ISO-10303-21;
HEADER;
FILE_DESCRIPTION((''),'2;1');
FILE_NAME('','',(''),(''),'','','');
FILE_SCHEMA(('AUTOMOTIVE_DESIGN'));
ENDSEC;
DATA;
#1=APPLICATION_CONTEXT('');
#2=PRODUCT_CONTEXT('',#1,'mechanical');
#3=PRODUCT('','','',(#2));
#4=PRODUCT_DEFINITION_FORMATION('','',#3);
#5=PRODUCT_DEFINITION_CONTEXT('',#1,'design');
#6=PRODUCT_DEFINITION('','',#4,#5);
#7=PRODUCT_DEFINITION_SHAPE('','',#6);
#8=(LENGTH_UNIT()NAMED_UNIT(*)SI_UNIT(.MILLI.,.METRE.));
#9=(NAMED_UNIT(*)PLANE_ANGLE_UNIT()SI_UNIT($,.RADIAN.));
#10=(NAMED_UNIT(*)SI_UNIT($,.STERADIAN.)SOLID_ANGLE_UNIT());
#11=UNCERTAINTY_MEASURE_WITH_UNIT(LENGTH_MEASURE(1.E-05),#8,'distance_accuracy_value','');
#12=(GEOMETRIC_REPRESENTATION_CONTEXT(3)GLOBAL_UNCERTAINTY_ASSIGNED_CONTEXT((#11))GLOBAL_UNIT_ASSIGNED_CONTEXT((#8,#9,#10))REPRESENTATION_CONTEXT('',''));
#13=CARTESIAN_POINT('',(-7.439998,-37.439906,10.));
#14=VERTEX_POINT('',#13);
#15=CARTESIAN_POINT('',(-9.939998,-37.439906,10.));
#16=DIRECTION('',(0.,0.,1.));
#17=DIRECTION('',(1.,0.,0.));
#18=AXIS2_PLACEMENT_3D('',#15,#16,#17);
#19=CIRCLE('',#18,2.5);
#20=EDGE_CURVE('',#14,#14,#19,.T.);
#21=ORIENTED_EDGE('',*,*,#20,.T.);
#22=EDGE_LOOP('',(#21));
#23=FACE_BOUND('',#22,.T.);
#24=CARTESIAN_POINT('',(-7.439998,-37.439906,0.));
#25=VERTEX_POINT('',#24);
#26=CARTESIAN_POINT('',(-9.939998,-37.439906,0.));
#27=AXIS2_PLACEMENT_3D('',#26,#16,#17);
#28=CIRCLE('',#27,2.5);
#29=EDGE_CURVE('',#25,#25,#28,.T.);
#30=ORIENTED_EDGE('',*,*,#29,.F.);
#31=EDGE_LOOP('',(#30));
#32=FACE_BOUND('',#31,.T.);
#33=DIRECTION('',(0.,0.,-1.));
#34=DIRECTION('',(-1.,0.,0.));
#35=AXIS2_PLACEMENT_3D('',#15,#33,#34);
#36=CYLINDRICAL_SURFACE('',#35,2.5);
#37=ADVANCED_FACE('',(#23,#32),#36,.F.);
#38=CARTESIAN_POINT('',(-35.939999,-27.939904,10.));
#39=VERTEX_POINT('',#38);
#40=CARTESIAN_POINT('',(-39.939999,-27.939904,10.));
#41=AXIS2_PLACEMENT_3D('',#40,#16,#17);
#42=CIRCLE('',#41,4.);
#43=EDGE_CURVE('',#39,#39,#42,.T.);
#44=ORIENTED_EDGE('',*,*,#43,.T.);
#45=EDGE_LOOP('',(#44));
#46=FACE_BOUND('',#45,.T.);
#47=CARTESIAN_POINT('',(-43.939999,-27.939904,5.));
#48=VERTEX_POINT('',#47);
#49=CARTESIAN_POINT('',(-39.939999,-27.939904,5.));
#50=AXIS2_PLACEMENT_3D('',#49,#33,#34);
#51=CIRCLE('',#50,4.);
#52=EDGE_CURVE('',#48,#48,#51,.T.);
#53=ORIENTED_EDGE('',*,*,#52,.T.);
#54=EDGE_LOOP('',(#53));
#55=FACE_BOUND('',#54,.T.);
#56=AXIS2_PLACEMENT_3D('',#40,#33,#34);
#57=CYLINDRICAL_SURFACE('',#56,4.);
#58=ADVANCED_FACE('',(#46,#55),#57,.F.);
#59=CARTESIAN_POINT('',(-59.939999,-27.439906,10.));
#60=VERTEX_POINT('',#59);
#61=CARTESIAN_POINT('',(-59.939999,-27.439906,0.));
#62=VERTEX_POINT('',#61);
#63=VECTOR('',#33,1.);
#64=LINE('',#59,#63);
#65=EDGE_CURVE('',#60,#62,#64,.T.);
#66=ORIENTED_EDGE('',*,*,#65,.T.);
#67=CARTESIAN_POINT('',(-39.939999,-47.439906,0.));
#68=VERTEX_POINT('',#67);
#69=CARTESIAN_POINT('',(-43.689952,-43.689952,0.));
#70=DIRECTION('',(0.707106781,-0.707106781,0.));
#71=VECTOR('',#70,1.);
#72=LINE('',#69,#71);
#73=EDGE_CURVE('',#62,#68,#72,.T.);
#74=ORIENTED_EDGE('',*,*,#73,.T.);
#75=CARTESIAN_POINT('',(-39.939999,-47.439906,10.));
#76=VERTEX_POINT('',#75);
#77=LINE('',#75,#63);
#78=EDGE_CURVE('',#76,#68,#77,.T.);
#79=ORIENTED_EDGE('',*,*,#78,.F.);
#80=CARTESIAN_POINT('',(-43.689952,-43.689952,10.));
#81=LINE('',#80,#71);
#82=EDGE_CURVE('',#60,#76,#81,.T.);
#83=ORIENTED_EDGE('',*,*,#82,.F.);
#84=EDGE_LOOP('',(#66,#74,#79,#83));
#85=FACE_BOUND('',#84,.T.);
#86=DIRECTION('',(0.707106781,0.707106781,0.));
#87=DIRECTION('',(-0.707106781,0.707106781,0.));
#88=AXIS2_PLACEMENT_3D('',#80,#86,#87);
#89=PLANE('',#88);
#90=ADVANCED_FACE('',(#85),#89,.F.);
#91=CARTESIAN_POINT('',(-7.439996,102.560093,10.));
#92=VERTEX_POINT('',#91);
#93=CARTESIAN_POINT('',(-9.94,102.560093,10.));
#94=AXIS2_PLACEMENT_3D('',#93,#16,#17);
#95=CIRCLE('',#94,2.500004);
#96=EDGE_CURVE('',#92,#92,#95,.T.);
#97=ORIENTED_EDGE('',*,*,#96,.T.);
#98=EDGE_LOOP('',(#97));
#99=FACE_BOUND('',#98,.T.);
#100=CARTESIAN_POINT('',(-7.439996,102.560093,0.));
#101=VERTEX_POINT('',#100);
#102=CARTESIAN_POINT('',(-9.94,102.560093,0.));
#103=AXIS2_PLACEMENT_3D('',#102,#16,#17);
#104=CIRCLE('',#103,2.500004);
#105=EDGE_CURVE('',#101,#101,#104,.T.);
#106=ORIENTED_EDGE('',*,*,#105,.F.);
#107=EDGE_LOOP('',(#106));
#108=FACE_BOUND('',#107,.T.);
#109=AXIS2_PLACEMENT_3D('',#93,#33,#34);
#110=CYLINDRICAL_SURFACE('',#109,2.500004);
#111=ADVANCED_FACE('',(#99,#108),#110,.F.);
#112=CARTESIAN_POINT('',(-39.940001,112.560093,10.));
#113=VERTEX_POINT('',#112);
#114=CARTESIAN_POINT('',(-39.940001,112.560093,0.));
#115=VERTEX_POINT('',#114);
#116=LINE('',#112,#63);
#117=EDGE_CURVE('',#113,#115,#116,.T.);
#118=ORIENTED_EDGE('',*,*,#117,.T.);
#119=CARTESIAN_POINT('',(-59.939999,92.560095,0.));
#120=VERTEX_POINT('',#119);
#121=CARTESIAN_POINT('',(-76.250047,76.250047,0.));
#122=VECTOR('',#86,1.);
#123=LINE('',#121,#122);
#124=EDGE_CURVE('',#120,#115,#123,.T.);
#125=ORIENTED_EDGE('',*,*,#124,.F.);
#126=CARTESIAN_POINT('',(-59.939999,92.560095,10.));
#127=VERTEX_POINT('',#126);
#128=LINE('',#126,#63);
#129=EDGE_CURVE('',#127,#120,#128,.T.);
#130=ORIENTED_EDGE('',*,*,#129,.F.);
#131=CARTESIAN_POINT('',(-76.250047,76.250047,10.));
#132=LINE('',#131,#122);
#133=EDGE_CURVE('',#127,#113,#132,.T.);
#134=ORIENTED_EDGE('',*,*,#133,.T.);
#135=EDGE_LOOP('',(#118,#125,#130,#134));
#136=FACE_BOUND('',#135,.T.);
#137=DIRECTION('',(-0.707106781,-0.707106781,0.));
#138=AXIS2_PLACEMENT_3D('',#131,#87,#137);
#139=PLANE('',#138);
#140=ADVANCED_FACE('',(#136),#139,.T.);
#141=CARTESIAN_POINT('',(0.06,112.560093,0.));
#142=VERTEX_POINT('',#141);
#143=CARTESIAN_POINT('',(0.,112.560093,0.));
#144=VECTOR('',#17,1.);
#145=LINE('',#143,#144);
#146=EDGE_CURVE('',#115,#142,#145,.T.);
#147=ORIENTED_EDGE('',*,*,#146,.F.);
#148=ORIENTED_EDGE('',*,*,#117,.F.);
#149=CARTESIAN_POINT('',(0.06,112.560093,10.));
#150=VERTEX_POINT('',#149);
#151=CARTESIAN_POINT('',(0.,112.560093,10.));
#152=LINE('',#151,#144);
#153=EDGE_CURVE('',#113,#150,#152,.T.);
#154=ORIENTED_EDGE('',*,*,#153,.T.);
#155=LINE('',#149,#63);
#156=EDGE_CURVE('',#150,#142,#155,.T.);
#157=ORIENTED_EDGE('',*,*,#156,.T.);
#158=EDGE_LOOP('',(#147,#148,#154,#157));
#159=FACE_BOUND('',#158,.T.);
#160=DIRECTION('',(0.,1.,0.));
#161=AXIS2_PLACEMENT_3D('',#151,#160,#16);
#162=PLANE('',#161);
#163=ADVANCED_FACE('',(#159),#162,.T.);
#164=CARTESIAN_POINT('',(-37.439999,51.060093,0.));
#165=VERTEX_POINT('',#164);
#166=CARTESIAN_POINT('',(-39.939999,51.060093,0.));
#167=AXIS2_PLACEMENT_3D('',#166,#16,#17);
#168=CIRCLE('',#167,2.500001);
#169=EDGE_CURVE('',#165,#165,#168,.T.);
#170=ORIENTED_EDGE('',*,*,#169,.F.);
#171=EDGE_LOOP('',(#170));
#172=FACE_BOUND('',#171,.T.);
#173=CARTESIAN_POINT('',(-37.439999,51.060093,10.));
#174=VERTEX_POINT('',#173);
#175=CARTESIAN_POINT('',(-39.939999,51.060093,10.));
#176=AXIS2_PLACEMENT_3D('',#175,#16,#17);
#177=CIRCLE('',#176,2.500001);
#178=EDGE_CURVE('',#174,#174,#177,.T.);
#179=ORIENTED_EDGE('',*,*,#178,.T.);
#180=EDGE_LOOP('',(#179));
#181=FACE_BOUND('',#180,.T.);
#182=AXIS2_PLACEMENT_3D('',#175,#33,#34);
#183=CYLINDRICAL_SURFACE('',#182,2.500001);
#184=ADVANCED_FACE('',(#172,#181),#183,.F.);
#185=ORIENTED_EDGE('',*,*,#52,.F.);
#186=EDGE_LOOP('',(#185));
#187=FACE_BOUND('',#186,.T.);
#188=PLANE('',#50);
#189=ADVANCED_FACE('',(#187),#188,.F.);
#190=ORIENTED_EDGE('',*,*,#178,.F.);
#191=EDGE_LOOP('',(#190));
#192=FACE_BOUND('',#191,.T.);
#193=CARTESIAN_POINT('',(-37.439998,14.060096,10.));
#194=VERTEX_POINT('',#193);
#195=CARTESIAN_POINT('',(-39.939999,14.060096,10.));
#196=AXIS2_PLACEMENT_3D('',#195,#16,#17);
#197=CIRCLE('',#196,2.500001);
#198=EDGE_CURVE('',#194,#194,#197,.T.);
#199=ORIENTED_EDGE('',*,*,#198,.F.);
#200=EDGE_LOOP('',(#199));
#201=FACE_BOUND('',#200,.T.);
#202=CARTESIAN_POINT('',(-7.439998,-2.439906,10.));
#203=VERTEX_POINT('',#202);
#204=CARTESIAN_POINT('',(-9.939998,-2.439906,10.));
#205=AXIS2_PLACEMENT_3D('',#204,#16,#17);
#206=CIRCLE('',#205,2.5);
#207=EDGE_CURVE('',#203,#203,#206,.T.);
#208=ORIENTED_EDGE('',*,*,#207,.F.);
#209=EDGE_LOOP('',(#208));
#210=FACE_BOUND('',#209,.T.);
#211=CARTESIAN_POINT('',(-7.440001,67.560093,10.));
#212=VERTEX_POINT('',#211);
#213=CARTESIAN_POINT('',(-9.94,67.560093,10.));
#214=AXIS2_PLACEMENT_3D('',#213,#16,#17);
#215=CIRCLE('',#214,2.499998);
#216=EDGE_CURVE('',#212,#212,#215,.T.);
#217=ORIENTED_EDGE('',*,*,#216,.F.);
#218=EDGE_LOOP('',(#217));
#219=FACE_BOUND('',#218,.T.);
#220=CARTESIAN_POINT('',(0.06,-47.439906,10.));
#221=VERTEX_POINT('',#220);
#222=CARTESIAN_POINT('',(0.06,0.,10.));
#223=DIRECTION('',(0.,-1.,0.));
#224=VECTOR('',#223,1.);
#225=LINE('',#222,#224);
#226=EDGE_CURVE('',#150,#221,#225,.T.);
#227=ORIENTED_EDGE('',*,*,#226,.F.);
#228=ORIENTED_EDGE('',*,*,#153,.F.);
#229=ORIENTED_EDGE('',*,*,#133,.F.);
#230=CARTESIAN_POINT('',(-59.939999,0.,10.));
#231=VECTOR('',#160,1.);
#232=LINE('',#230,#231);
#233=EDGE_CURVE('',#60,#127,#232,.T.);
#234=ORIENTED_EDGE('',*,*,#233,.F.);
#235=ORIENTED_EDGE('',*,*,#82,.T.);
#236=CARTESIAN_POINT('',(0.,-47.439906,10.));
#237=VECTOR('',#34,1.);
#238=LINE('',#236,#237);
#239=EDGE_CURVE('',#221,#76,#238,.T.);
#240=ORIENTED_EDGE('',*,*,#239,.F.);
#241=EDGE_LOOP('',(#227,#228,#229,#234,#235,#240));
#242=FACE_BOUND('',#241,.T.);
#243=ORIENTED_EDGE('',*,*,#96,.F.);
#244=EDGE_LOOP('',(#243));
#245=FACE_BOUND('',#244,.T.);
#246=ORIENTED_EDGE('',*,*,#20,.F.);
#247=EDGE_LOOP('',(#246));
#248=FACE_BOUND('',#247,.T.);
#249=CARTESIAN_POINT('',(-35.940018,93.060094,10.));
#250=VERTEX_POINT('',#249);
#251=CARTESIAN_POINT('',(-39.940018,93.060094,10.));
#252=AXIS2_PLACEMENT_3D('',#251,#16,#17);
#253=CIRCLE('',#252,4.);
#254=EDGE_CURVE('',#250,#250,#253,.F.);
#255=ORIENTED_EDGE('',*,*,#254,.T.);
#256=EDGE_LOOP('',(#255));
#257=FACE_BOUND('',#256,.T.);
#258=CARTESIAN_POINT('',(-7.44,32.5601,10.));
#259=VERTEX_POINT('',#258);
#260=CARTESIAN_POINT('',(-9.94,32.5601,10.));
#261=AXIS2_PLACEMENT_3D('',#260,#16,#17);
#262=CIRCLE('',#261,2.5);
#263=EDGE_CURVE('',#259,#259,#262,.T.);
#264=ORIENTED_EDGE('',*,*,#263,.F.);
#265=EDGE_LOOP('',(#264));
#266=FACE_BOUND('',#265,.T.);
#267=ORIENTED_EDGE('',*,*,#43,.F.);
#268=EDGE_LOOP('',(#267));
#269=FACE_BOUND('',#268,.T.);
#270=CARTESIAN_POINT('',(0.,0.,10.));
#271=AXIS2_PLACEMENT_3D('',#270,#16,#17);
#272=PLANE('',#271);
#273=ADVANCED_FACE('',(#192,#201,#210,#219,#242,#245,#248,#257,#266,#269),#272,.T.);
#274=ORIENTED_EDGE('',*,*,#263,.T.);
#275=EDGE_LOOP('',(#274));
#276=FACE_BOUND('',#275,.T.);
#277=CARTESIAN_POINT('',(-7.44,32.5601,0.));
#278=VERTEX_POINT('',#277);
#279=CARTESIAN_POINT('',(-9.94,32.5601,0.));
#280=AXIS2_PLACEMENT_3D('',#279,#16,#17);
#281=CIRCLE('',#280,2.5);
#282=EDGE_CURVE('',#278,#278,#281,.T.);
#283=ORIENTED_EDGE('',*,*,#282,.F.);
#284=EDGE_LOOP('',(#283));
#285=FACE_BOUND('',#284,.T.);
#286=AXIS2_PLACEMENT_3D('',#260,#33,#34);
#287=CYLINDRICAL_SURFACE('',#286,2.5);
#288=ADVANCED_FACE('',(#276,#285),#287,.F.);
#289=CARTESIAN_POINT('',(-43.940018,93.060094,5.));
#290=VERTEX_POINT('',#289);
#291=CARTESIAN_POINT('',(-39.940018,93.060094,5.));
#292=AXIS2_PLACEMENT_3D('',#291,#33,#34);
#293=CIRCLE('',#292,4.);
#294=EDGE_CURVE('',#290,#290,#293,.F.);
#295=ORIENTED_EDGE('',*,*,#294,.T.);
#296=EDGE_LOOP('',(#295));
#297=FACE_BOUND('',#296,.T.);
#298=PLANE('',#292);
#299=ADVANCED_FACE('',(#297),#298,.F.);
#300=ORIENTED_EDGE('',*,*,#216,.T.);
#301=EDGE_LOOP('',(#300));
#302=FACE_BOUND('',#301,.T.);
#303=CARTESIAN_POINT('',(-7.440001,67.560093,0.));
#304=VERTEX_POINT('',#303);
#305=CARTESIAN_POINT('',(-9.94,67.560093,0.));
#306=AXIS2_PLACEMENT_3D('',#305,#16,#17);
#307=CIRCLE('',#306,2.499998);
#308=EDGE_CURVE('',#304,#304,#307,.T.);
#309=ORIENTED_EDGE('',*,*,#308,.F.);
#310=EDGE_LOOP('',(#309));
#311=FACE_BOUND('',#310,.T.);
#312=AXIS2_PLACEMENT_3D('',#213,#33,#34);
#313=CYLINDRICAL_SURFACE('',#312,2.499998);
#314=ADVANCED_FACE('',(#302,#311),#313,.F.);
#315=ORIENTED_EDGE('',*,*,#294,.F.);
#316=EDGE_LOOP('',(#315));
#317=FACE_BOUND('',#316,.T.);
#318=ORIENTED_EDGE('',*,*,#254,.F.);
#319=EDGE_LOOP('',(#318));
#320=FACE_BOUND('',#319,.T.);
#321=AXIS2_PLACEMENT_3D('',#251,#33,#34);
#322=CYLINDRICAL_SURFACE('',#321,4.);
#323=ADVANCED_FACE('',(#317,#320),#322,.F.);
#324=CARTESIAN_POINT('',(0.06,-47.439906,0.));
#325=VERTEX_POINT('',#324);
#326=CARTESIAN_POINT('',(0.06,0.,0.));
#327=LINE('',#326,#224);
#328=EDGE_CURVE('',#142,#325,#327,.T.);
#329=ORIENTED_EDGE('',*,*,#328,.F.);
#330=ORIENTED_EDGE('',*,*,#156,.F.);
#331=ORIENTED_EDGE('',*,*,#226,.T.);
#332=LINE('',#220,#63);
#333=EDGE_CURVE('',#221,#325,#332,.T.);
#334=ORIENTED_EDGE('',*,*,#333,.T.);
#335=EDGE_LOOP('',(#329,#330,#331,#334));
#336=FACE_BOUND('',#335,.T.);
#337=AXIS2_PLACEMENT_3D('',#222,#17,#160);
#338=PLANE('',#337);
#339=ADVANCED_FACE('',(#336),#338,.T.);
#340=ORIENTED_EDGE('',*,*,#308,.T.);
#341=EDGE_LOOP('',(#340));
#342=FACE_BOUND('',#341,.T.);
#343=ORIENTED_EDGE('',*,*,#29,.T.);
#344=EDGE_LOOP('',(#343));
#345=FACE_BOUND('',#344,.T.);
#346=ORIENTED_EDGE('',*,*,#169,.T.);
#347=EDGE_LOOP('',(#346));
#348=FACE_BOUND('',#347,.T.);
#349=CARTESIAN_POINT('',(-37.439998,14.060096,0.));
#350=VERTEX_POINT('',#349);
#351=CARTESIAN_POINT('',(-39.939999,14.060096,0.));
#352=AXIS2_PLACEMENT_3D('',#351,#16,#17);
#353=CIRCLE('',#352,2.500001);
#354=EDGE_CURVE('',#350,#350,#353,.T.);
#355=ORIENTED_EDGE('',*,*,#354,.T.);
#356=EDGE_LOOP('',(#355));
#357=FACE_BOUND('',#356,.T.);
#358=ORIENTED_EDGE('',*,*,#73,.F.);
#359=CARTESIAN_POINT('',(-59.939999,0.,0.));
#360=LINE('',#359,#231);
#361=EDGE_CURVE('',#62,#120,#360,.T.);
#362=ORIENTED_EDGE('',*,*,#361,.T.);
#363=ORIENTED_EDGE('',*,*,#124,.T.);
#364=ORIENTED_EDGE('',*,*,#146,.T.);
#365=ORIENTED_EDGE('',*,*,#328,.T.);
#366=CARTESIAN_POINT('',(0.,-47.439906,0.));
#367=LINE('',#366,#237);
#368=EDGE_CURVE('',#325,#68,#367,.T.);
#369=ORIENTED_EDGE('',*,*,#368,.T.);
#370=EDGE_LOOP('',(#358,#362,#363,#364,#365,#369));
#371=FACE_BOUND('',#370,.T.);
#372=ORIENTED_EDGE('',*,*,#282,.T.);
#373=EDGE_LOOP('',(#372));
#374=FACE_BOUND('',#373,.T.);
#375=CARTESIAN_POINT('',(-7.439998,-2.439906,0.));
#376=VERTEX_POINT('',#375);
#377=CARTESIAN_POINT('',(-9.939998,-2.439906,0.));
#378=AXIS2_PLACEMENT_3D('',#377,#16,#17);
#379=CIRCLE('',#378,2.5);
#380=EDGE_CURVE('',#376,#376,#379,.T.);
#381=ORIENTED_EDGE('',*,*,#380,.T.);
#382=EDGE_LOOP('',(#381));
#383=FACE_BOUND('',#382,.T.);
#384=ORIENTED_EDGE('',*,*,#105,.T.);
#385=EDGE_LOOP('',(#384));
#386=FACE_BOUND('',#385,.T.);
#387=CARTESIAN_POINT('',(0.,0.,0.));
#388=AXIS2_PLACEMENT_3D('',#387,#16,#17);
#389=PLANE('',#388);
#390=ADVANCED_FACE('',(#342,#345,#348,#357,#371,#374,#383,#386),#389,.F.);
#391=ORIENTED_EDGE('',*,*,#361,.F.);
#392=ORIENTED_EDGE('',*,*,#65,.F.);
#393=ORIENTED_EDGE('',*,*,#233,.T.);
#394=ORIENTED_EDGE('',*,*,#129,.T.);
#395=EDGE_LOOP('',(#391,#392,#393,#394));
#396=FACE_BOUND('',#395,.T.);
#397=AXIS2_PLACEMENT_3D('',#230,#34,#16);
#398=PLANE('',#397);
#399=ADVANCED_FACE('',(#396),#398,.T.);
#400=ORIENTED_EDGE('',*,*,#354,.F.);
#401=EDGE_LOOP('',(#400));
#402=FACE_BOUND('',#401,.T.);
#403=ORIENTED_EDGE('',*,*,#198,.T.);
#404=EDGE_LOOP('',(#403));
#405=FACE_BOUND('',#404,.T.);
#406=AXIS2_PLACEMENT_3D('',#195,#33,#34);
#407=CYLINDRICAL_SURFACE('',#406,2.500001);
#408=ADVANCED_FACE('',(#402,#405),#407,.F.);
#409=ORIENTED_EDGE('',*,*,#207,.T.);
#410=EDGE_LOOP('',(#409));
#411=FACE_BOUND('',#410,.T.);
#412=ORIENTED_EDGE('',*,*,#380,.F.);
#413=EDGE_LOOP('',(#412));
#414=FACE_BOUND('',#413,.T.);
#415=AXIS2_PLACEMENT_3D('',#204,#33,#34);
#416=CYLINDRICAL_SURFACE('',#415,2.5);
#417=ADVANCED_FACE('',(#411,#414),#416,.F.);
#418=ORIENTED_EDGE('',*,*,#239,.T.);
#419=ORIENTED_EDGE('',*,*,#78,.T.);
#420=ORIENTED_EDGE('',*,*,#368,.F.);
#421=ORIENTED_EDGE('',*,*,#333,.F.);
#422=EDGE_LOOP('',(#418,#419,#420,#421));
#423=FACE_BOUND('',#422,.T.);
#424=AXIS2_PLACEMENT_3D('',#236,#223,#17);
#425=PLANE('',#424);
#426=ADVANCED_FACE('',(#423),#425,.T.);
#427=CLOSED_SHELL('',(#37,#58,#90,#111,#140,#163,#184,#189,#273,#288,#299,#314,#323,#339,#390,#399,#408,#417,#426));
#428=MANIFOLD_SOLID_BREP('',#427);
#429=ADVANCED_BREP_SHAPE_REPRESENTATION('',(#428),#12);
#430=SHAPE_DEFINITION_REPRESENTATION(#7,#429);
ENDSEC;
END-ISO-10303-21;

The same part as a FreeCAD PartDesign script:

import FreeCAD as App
import Part
import Sketcher

V = App.Vector
Q = App.Units.Quantity


def add_polygon(sketch, points):
    """Adds a closed chain of lines whose ends are joined by coincident constraints."""
    first, n = sketch.GeometryCount, len(points)
    for a, b in zip(points, points[1:] + points[:1]):
        sketch.addGeometry(Part.LineSegment(App.Vector(*a, 0), App.Vector(*b, 0)), False)
    for i in range(n):
        sketch.addConstraint(Sketcher.Constraint("Coincident", first + i, 2, first + (i + 1) % n, 1))

doc = App.newDocument("Part")
body = doc.addObject("PartDesign::Body", "Body")

# Sketch on XY plane
sketch1 = body.newObject("Sketcher::SketchObject", "Sketch")
sketch1.AttachmentSupport = (doc.getObject("XY_Plane"), [""])
sketch1.MapMode = "FlatFace"
add_polygon(sketch1, [(0.1, -47.4), (0.1, 112.6), (-39.9, 112.6), (-59.9, 92.6), (-59.9, -27.4), (-39.9, -47.4)])  # lines 0-5
sketch1.addGeometry(Part.Circle(V(-9.9, -37.4, 0), V(0, 0, 1), 2.5), False)  # 6
sketch1.addGeometry(Part.Circle(V(-9.9, -2.4, 0), V(0, 0, 1), 2.5), False)  # 7
sketch1.addGeometry(Part.Circle(V(-39.9, -27.9, 0), V(0, 0, 1), 4), False)  # 8
sketch1.addGeometry(Part.Circle(V(-39.9, 14.1, 0), V(0, 0, 1), 2.5), False)  # 9
sketch1.addGeometry(Part.Circle(V(-9.9, 32.6, 0), V(0, 0, 1), 2.5), False)  # 10
sketch1.addGeometry(Part.Circle(V(-9.9, 67.6, 0), V(0, 0, 1), 2.5), False)  # 11
sketch1.addGeometry(Part.Circle(V(-9.9, 102.6, 0), V(0, 0, 1), 2.5), False)  # 12
sketch1.addGeometry(Part.Circle(V(-39.9, 51.1, 0), V(0, 0, 1), 2.5), False)  # 13
sketch1.addGeometry(Part.Circle(V(-39.9, 93.1, 0), V(0, 0, 1), 4), False)  # 14
sketch1.addConstraint([
    Sketcher.Constraint("Vertical", 0),
    Sketcher.Constraint("Horizontal", 1),
    Sketcher.Constraint("Vertical", 3),
    Sketcher.Constraint("Horizontal", 5),
    Sketcher.Constraint("Equal", 6, 7),
    Sketcher.Constraint("Equal", 7, 9),
    Sketcher.Constraint("Equal", 9, 10),
    Sketcher.Constraint("Equal", 10, 11),
    Sketcher.Constraint("Equal", 10, 13),
    Sketcher.Constraint("Equal", 8, 14),
    Sketcher.Constraint("Perpendicular", 2, 4),
    Sketcher.Constraint("Vertical", 6, 3, 7, 3),
    Sketcher.Constraint("Vertical", 8, 3, 9, 3),
    Sketcher.Constraint("Vertical", 7, 3, 10, 3),
    Sketcher.Constraint("Vertical", 10, 3, 11, 3),
    Sketcher.Constraint("Vertical", 11, 3, 12, 3),
    Sketcher.Constraint("Vertical", 9, 3, 13, 3),
    Sketcher.Constraint("Vertical", 13, 3, 1, 2),
    Sketcher.Constraint("Vertical", 1, 2, 4, 2),
    Sketcher.Constraint("Diameter", 6, Q("5 mm")),
    Sketcher.Constraint("Diameter", 8, Q("8 mm")),
    Sketcher.Constraint("DistanceX", 1, 2, 1, 1, Q("40.000001 mm")),
    Sketcher.Constraint("DistanceY", 0, 1, 0, 2, Q("159.999998 mm")),
    Sketcher.Constraint("DistanceY", 3, 2, 3, 1, Q("120.000001 mm")),
    Sketcher.Constraint("Angle", 2, Q("-135 deg")),
    Sketcher.Constraint("DistanceY", 6, 3, 7, 3, Q("35 mm")),
    Sketcher.Constraint("DistanceX", 8, 3, 6, 3, Q("30.000001 mm")),
    Sketcher.Constraint("DistanceY", 8, 3, 9, 3, Q("42 mm")),
    Sketcher.Constraint("DistanceY", 7, 3, 11, 3, Q("69.999998 mm")),
    Sketcher.Constraint("DistanceY", 11, 3, 12, 3, Q("35 mm")),
    Sketcher.Constraint("DistanceY", 13, 3, 14, 3, Q("42.000001 mm")),
    Sketcher.Constraint("DistanceY", 12, 3, 0, 2, Q("10 mm")),
    Sketcher.Constraint("DistanceY", 6, 3, 8, 3, Q("9.500002 mm")),
    Sketcher.Constraint("DistanceY", 13, 3, 11, 3, Q("16.5 mm")),
    Sketcher.Constraint("DistanceX", 8, 3, -1, 1, Q("39.939999 mm")),
    Sketcher.Constraint("Diameter", 12, Q("5.000007 mm")),
    Sketcher.Constraint("DistanceY", -1, 1, 10, 3, Q("32.5601 mm")),
    Sketcher.Constraint("DistanceX", 2, 2, 14, 3, Q("19.999981 mm")),
    Sketcher.Constraint("DistanceY", 6, 3, -1, 1, Q("37.439906 mm")),
])
pad1 = body.newObject("PartDesign::Pad", "Pad")
pad1.Profile = sketch1
pad1.Length = 10

# Sketch on XY plane
sketch2 = body.newObject("Sketcher::SketchObject", "Sketch001")
sketch2.AttachmentSupport = (doc.getObject("XY_Plane"), [""])
sketch2.MapMode = "FlatFace"
sketch2.addGeometry([
    Part.Circle(V(-39.9, 93.1, 0), V(0, 0, 1), 4),
    Part.Circle(V(-39.9, -27.9, 0), V(0, 0, 1), 4),
], False)
sketch2.addConstraint([
    Sketcher.Constraint("Equal", 0, 1),
    Sketcher.Constraint("Diameter", 0, Q("8 mm")),
    Sketcher.Constraint("DistanceX", 1, 3, -1, 1, Q("39.939999 mm")),
    Sketcher.Constraint("DistanceX", 0, 3, -1, 1, Q("39.940018 mm")),
    Sketcher.Constraint("DistanceY", -1, 1, 0, 3, Q("93.060094 mm")),
    Sketcher.Constraint("DistanceY", 1, 3, -1, 1, Q("27.939904 mm")),
])
pad2 = body.newObject("PartDesign::Pad", "Pad001")
pad2.Profile = sketch2
pad2.Length = 5

doc.recompute()
